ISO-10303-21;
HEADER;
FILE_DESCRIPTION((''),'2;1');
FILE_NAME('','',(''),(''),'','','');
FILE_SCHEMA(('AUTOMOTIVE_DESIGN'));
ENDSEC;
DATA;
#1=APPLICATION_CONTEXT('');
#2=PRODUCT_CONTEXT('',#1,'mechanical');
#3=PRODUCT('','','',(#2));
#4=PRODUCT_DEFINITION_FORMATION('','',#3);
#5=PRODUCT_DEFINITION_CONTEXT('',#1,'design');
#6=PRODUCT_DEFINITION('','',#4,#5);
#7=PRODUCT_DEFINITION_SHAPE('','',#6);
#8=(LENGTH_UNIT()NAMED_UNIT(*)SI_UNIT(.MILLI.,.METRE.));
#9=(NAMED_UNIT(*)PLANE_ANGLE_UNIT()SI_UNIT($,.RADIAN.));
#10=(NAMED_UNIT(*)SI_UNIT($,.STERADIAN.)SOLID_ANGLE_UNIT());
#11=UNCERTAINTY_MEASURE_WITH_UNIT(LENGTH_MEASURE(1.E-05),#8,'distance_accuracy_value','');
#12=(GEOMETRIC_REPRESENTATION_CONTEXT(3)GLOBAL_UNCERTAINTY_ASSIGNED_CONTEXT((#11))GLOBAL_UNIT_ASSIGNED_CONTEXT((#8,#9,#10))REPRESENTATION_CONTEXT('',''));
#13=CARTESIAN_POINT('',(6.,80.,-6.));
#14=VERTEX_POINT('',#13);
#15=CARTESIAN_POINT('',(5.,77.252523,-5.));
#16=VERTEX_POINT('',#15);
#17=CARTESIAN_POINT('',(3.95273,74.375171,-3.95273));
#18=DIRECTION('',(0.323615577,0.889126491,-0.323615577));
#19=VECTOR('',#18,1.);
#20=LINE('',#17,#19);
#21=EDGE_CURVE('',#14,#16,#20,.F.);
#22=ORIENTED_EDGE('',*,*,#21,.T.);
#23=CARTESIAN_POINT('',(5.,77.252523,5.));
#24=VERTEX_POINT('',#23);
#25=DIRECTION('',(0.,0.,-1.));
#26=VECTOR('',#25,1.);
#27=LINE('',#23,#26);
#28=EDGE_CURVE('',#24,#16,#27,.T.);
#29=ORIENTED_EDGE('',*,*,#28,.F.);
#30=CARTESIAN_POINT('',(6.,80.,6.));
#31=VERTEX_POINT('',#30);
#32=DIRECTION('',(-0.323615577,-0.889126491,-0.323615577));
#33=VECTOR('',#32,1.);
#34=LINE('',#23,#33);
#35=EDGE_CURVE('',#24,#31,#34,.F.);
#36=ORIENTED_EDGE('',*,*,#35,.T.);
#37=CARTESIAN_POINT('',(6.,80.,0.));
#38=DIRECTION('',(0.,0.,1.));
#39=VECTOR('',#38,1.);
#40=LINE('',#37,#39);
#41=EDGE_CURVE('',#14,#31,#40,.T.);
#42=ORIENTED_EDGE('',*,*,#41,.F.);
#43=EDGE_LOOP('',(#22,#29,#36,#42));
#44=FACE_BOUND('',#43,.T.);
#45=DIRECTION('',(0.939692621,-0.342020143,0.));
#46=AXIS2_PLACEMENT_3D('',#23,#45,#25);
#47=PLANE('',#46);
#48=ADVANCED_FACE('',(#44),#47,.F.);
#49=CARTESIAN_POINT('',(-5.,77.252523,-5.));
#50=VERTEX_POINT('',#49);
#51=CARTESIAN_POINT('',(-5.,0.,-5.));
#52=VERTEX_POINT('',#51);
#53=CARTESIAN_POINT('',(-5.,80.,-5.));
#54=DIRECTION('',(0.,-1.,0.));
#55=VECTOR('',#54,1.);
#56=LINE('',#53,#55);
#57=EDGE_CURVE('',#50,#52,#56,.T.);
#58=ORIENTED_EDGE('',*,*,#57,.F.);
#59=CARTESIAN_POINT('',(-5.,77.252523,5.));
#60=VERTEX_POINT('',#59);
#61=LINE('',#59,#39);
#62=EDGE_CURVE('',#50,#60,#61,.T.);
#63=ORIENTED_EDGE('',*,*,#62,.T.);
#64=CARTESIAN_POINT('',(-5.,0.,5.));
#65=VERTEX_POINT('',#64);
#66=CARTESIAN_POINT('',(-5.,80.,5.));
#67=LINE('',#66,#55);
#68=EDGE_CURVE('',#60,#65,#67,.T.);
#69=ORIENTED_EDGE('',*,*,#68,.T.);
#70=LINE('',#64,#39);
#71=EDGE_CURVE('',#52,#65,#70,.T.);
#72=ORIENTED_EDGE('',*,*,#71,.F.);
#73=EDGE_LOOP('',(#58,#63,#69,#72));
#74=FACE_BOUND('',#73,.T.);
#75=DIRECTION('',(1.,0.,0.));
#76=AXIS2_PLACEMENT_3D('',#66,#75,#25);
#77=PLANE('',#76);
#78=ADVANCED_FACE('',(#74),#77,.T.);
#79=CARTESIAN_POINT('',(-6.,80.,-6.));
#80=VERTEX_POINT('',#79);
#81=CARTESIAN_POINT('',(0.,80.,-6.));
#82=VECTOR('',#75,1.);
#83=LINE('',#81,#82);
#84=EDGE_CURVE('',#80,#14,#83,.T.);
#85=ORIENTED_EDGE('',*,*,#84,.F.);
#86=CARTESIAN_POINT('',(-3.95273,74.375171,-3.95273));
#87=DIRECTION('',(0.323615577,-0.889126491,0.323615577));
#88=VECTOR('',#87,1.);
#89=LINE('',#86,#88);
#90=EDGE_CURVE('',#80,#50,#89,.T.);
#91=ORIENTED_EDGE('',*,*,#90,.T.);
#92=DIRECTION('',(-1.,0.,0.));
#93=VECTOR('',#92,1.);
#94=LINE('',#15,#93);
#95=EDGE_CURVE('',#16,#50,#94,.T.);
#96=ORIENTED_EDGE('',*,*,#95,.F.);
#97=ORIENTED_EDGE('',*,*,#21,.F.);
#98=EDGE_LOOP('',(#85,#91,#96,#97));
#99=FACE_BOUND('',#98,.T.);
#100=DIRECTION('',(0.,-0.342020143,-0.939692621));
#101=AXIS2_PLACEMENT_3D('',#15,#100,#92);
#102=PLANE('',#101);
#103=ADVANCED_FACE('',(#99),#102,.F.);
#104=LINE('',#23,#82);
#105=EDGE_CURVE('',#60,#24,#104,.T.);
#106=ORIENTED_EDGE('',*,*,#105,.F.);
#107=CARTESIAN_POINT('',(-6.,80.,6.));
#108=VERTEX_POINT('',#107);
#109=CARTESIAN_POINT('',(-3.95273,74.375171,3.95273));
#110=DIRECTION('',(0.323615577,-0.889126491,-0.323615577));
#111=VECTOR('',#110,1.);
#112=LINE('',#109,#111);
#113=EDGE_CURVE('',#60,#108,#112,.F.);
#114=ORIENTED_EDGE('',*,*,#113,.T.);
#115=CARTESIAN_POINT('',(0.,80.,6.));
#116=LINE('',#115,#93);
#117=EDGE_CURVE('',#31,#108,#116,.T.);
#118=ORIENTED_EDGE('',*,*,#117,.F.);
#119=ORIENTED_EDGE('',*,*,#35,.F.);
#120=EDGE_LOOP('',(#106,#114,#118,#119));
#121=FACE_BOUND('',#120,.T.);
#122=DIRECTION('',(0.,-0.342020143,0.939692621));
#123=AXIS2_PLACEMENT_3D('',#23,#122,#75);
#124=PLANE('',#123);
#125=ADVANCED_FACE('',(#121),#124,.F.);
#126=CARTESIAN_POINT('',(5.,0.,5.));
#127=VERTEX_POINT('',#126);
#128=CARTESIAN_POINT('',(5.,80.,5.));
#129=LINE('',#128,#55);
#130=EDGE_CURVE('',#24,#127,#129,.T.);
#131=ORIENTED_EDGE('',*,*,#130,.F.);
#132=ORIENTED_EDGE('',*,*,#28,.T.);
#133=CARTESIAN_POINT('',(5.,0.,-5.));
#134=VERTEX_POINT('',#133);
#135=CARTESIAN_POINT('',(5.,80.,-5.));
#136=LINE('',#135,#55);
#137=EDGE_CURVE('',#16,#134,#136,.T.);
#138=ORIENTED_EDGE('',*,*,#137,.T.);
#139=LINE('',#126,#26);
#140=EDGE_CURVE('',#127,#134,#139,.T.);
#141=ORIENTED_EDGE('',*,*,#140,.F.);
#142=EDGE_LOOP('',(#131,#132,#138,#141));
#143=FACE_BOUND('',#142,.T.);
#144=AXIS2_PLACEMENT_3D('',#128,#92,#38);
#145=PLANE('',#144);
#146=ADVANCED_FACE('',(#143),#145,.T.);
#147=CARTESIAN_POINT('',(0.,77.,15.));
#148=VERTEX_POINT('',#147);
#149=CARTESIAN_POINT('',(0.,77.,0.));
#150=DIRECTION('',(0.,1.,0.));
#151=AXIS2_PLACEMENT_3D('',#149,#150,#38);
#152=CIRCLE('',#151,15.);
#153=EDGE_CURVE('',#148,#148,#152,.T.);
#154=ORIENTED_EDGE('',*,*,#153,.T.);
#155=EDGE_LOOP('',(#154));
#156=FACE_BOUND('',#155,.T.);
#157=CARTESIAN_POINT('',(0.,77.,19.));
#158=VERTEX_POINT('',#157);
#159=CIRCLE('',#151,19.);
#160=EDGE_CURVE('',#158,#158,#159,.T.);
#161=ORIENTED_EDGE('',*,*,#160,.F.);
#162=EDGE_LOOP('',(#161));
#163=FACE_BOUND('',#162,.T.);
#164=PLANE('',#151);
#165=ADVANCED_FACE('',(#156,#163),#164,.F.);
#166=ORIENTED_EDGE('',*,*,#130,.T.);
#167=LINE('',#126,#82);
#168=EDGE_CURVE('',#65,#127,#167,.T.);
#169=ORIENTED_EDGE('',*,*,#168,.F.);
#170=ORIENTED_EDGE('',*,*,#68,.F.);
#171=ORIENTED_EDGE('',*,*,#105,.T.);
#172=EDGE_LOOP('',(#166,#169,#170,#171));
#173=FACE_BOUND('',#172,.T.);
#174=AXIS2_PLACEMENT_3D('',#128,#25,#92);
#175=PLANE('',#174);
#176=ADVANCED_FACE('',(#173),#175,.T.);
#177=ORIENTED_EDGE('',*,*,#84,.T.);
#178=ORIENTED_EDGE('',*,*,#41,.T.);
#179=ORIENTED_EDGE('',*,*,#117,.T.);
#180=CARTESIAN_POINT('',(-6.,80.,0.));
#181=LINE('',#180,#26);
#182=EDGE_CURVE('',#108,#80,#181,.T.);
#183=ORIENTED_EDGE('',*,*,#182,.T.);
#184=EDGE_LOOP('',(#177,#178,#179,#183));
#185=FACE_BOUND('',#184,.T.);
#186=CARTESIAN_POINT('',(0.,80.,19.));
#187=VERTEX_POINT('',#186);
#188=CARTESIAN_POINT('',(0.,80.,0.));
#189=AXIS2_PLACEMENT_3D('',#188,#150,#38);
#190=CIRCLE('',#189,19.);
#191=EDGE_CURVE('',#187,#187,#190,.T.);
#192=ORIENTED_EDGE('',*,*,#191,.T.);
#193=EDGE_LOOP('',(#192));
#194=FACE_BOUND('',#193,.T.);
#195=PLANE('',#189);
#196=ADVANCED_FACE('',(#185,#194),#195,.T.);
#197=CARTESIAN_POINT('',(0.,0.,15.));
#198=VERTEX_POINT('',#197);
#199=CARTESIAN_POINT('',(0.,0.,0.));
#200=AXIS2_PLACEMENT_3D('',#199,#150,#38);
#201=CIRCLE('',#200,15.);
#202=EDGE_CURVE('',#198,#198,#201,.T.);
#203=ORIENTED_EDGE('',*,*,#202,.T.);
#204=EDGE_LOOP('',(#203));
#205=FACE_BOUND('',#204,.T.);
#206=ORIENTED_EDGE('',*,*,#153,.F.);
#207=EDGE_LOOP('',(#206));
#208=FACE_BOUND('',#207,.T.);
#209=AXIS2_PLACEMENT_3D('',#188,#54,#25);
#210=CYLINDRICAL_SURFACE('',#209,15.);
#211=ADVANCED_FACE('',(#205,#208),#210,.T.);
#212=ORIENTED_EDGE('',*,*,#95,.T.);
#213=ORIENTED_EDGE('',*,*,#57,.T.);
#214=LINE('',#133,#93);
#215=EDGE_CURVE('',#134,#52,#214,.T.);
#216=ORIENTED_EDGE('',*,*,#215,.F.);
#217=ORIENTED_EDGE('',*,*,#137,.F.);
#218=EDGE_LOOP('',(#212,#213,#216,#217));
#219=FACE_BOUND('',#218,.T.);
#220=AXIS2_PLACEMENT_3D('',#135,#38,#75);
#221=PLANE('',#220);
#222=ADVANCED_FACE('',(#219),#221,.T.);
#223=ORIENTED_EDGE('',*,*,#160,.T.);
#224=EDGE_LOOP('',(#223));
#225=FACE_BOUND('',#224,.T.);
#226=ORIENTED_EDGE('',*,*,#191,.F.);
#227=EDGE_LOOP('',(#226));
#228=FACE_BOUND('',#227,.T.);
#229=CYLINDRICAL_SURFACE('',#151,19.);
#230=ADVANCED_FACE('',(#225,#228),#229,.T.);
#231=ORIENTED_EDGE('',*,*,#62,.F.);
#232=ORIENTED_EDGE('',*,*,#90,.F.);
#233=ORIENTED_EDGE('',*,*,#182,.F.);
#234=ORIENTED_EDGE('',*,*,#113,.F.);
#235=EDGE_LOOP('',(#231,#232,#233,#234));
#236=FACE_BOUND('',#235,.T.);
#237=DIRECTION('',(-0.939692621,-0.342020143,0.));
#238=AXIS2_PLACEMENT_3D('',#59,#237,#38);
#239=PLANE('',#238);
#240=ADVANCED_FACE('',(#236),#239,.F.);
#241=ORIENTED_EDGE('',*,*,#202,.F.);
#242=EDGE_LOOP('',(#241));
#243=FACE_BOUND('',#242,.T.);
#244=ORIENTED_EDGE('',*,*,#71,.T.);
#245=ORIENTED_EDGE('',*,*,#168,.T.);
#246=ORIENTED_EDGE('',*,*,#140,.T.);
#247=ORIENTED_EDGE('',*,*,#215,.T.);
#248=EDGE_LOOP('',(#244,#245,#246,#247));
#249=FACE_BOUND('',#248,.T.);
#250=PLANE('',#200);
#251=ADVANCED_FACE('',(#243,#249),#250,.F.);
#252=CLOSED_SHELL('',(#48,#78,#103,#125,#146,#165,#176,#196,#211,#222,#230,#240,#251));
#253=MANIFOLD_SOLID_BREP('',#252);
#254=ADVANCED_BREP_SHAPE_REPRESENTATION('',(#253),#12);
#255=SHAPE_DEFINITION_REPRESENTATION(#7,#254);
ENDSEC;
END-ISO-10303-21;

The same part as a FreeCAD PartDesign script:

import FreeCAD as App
import Part
import Sketcher

V = App.Vector


def edges_at(feature, points):
    """Names of the edges that pass closest to the given points."""
    edges = feature.Shape.Edges
    near = lambda p: min(range(len(edges)), key=lambda i: edges[i].distToShape(Part.Vertex(*p))[0])
    return sorted({f"Edge{near(p) + 1}" for p in points})

doc = App.newDocument("Part")
body = doc.addObject("PartDesign::Body", "Body")

sketch1 = body.newObject("Sketcher::SketchObject", "Sketch")
sketch1.AttachmentSupport = (doc.getObject("XZ_Plane"), [""])
sketch1.MapMode = "FlatFace"
sketch1.addGeometry([
    Part.Circle(V(0, 0, 0), V(0, 0, 1), 15),
    Part.LineSegment(V(5, 5, 0), V(-5, 5, 0)),
    Part.LineSegment(V(-5, 5, 0), V(-5, -5, 0)),
    Part.LineSegment(V(-5, -5, 0), V(5, -5, 0)),
    Part.LineSegment(V(5, -5, 0), V(5, 5, 0)),
], False)
sketch1.addConstraint([
    Sketcher.Constraint("Coincident", 1, 2, 2, 1),
    Sketcher.Constraint("Coincident", 2, 2, 3, 1),
    Sketcher.Constraint("Coincident", 3, 2, 4, 1),
    Sketcher.Constraint("Coincident", 4, 2, 1, 1),
    Sketcher.Constraint("Horizontal", 1),
    Sketcher.Constraint("Vertical", 2),
    Sketcher.Constraint("Horizontal", 3),
    Sketcher.Constraint("Vertical", 4),
    Sketcher.Constraint("Coincident", 0, 3, -1, 1),
    Sketcher.Constraint("Symmetric", 1, 2, 3, 2, -1, 1),
    Sketcher.Constraint("Equal", 3, 2),
    Sketcher.Constraint("Diameter", 0, 30.0),
    Sketcher.Constraint("DistanceX", 1, 2, 1, 1, 10.0),
])
pad1 = body.newObject("PartDesign::Pad", "Pad")
pad1.Profile = sketch1
pad1.Length = 80
pad1.Reversed = True

sketch2 = body.newObject("Sketcher::SketchObject", "Sketch001")
sketch2.AttachmentSupport = (doc.getObject("XZ_Plane"), [""])
sketch2.MapMode = "FlatFace"
sketch2.AttachmentOffset = App.Placement(V(0, 0, -80), App.Rotation())
sketch2.addGeometry([
    Part.Circle(V(0, 0, 0), V(0, 0, 1), 19),
    Part.LineSegment(V(5, 5, 0), V(-5, 5, 0)),
    Part.LineSegment(V(-5, 5, 0), V(-5, -5, 0)),
    Part.LineSegment(V(-5, -5, 0), V(5, -5, 0)),
    Part.LineSegment(V(5, -5, 0), V(5, 5, 0)),
], False)
sketch2.addConstraint([
    Sketcher.Constraint("Coincident", 1, 2, 2, 1),
    Sketcher.Constraint("Coincident", 2, 2, 3, 1),
    Sketcher.Constraint("Coincident", 3, 2, 4, 1),
    Sketcher.Constraint("Coincident", 4, 2, 1, 1),
    Sketcher.Constraint("Horizontal", 1),
    Sketcher.Constraint("Vertical", 2),
    Sketcher.Constraint("Horizontal", 3),
    Sketcher.Constraint("Vertical", 4),
    Sketcher.Constraint("Coincident", 0, 3, -1, 1),
    Sketcher.Constraint("Symmetric", 1, 2, 3, 2, -1, 1),
    Sketcher.Constraint("Equal", 3, 2),
    Sketcher.Constraint("Diameter", 0, 38.0),
    Sketcher.Constraint("DistanceX", 1, 2, 1, 1, 10.0),
])
pad2 = body.newObject("PartDesign::Pad", "Pad001")
pad2.Profile = sketch2
pad2.Length = 3
doc.recompute()

chamfer = body.newObject("PartDesign::Chamfer", "Chamfer")
chamfer.Base = (pad2, edges_at(pad2, [
    (0, 80, -5),
    (-5, 80, 0),
    (0, 80, 5),
    (5, 80, 0),
]))
chamfer.ChamferType = "Two distances"
chamfer.Size = 1
chamfer.Size2 = 2.747477
chamfer.FlipDirection = True

doc.recompute()
